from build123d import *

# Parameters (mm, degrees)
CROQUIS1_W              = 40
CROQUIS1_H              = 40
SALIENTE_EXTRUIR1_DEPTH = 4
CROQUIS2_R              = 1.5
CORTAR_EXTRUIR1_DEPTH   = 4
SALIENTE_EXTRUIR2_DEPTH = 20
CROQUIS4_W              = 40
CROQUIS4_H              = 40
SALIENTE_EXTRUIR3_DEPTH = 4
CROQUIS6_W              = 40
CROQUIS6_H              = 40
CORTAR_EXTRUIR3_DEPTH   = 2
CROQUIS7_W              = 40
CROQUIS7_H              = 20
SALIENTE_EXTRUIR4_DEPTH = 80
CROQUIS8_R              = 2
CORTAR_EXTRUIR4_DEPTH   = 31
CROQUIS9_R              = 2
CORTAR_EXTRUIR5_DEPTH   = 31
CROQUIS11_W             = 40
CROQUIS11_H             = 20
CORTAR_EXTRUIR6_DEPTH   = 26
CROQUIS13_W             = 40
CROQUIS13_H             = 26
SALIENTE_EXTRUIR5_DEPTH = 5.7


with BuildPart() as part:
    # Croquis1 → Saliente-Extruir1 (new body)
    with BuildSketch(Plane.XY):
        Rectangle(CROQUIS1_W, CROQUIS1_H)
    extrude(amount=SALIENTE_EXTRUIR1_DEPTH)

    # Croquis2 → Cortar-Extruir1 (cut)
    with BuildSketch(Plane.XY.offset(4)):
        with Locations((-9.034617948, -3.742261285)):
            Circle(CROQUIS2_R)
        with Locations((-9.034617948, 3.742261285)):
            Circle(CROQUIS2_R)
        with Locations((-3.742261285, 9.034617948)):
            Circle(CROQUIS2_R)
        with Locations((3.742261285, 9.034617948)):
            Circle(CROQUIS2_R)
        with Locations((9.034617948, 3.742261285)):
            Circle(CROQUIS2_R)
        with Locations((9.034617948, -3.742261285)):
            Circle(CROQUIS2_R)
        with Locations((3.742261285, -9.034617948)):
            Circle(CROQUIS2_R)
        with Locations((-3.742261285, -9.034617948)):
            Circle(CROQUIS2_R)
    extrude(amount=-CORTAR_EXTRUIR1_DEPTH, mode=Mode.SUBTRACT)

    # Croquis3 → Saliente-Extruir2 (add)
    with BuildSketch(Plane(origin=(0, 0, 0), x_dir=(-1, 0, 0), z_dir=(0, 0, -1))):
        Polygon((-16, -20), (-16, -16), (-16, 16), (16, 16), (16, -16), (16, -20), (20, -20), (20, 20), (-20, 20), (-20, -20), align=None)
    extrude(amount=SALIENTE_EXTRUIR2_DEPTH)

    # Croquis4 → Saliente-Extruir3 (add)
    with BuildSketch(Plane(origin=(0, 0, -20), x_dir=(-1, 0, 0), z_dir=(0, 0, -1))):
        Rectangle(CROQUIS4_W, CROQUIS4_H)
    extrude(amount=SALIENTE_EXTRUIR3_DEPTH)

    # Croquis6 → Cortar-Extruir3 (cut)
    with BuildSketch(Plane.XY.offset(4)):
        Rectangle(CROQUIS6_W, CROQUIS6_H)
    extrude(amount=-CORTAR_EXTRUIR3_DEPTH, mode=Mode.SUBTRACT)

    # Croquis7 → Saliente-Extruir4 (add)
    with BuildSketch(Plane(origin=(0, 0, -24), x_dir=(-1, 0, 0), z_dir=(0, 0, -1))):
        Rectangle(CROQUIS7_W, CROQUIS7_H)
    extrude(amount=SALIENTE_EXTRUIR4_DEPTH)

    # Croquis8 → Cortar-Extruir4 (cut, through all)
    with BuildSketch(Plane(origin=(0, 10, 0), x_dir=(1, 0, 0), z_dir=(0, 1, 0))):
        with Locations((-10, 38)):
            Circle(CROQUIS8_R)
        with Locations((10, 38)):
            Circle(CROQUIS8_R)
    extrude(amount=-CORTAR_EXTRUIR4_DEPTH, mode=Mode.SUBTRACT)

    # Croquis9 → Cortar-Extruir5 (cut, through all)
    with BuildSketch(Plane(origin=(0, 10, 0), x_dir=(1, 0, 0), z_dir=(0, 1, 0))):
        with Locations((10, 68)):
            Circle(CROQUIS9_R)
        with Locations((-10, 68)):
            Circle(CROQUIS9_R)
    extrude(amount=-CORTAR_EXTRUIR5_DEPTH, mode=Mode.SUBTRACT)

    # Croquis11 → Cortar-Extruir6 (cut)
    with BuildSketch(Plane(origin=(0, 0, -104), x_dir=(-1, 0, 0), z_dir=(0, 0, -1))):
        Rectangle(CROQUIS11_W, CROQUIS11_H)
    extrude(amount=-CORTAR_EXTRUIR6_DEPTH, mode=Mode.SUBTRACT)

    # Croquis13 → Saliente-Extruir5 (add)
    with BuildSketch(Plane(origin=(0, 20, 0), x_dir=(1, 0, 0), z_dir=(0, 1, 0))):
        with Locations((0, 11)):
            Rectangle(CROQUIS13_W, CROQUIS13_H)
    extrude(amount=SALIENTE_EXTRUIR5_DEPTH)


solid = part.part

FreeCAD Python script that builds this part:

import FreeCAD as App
import Part
import Sketcher

V = App.Vector

doc = App.newDocument("Part")
params = doc.addObject("Spreadsheet::Sheet", "Params")
for row, (alias, value) in enumerate([
    ("sketch1_width", "40 mm"),
    ("pad1_length", "4 mm"),
    ("sketch2_diameter", "3 mm"),
    ("pocket1_length", "4 mm"),
    ("sketch3_width", "32 mm"),
    ("sketch3_width2", "4 mm"),
    ("sketch3_height", "36 mm"),
    ("pad2_length", "20 mm"),
    ("sketch4_width", "40 mm"),
    ("pad3_length", "4 mm"),
    ("sketch5_width", "40 mm"),
    ("pocket2_length", "2 mm"),
    ("sketch6_width", "40 mm"),
    ("sketch6_height", "20 mm"),
    ("pad4_length", "80 mm"),
    ("sketch7_diameter", "4 mm"),
    ("sketch8_diameter", "4 mm"),
    ("sketch9_width", "40 mm"),
    ("sketch9_height", "20 mm"),
    ("pocket5_length", "26 mm"),
    ("sketch10_width", "40 mm"),
    ("sketch10_height", "26 mm"),
    ("pad5_length", "5.7 mm"),
], start=1):
    params.set(f"A{row}", alias)
    params.set(f"B{row}", "=" + value)
    params.setAlias(f"B{row}", alias)

body = doc.addObject("PartDesign::Body", "Body")

# Sketch on XY plane
sketch1 = body.newObject("Sketcher::SketchObject", "Sketch")
sketch1.AttachmentSupport = (doc.getObject("XY_Plane"), [""])
sketch1.MapMode = "FlatFace"
sketch1.addGeometry(Part.LineSegment(V(-20, 20, 0), V(-20, -20, 0)), False)
sketch1.addGeometry(Part.LineSegment(V(-20, -20, 0), V(20, -20, 0)), False)
sketch1.addGeometry(Part.LineSegment(V(20, -20, 0), V(20, 20, 0)), False)
sketch1.addGeometry(Part.LineSegment(V(20, 20, 0), V(-20, 20, 0)), False)
sketch1.addConstraint(Sketcher.Constraint("Coincident", 0, 2, 1, 1))
sketch1.addConstraint(Sketcher.Constraint("Coincident", 1, 2, 2, 1))
sketch1.addConstraint(Sketcher.Constraint("Coincident", 2, 2, 3, 1))
sketch1.addConstraint(Sketcher.Constraint("Coincident", 3, 2, 0, 1))
sketch1.addConstraint(Sketcher.Constraint("Vertical", 0))
sketch1.addConstraint(Sketcher.Constraint("Horizontal", 1))
sketch1.addConstraint(Sketcher.Constraint("Vertical", 2))
sketch1.addConstraint(Sketcher.Constraint("Horizontal", 3))
sketch1.addConstraint(Sketcher.Constraint("Symmetric", 0, 2, 2, 2, -1, 1))
sketch1.addConstraint(Sketcher.Constraint("Equal", 3, 0))
sketch1.addConstraint(Sketcher.Constraint("DistanceX", 1, 1, 1, 2, 40.0))
sketch1.setExpression("Constraints[10]", "Params.sketch1_width")
pad1 = body.newObject("PartDesign::Pad", "Pad")
pad1.Profile = sketch1
pad1.setExpression("Length", "Params.pad1_length")

# Sketch on XY plane
sketch2 = body.newObject("Sketcher::SketchObject", "Sketch001")
sketch2.AttachmentSupport = (doc.getObject("XY_Plane"), [""])
sketch2.MapMode = "FlatFace"
sketch2.AttachmentOffset = App.Placement(V(0, 0, 4), App.Rotation())
sketch2.addGeometry(Part.Circle(V(-9, -3.7, 0), V(0, 0, 1), 1.5), False)
sketch2.addGeometry(Part.Circle(V(-9, 3.7, 0), V(0, 0, 1), 1.5), False)
sketch2.addGeometry(Part.Circle(V(-3.7, 9, 0), V(0, 0, 1), 1.5), False)
sketch2.addGeometry(Part.Circle(V(3.7, 9, 0), V(0, 0, 1), 1.5), False)
sketch2.addGeometry(Part.Circle(V(9, 3.7, 0), V(0, 0, 1), 1.5), False)
sketch2.addGeometry(Part.Circle(V(9, -3.7, 0), V(0, 0, 1), 1.5), False)
sketch2.addGeometry(Part.Circle(V(3.7, -9, 0), V(0, 0, 1), 1.5), False)
sketch2.addGeometry(Part.Circle(V(-3.7, -9, 0), V(0, 0, 1), 1.5), False)
sketch2.addConstraint(Sketcher.Constraint("Equal", 0, 1))
sketch2.addConstraint(Sketcher.Constraint("Equal", 1, 2))
sketch2.addConstraint(Sketcher.Constraint("Equal", 2, 3))
sketch2.addConstraint(Sketcher.Constraint("Equal", 3, 4))
sketch2.addConstraint(Sketcher.Constraint("Equal", 4, 5))
sketch2.addConstraint(Sketcher.Constraint("Equal", 5, 6))
sketch2.addConstraint(Sketcher.Constraint("Equal", 6, 7))
sketch2.addConstraint(Sketcher.Constraint("Symmetric", 0, 3, 4, 3, -1, 1))
sketch2.addConstraint(Sketcher.Constraint("Symmetric", 1, 3, 5, 3, -1, 1))
sketch2.addConstraint(Sketcher.Constraint("Symmetric", 2, 3, 6, 3, -1, 1))
sketch2.addConstraint(Sketcher.Constraint("Symmetric", 3, 3, 7, 3, -1, 1))
sketch2.addConstraint(Sketcher.Constraint("Symmetric", 2, 3, 3, 3, -2))
sketch2.addConstraint(Sketcher.Constraint("Symmetric", 1, 3, 4, 3, -2))
sketch2.addConstraint(Sketcher.Constraint("Diameter", 0, 3.0))
sketch2.addConstraint(Sketcher.Constraint("DistanceY", 0, 3, -1, 1, 3.742261))
sketch2.addConstraint(Sketcher.Constraint("DistanceX", 2, 3, -1, 1, 3.742261))
sketch2.addConstraint(Sketcher.Constraint("DistanceY", 0, 3, 2, 3, 12.776879))
sketch2.addConstraint(Sketcher.Constraint("DistanceX", 1, 3, 3, 3, 12.776879))
sketch2.setExpression("Constraints[13]", "Params.sketch2_diameter")
pocket1 = body.newObject("PartDesign::Pocket", "Pocket")
pocket1.Profile = sketch2
pocket1.setExpression("Length", "Params.pocket1_length")

# Sketch on XY plane
sketch3 = body.newObject("Sketcher::SketchObject", "Sketch002")
sketch3.AttachmentSupport = (doc.getObject("XY_Plane"), [""])
sketch3.MapMode = "FlatFace"
sketch3.addGeometry(Part.LineSegment(V(16, -20, 0), V(16, 16, 0)), False)
sketch3.addGeometry(Part.LineSegment(V(16, 16, 0), V(-16, 16, 0)), False)
sketch3.addGeometry(Part.LineSegment(V(-16, 16, 0), V(-16, -20, 0)), False)
sketch3.addGeometry(Part.LineSegment(V(-16, -20, 0), V(-20, -20, 0)), False)
sketch3.addGeometry(Part.LineSegment(V(-20, -20, 0), V(-20, 20, 0)), False)
sketch3.addGeometry(Part.LineSegment(V(-20, 20, 0), V(20, 20, 0)), False)
sketch3.addGeometry(Part.LineSegment(V(20, 20, 0), V(20, -20, 0)), False)
sketch3.addGeometry(Part.LineSegment(V(20, -20, 0), V(16, -20, 0)), False)
sketch3.addConstraint(Sketcher.Constraint("Coincident", 0, 2, 1, 1))
sketch3.addConstraint(Sketcher.Constraint("Coincident", 1, 2, 2, 1))
sketch3.addConstraint(Sketcher.Constraint("Coincident", 2, 2, 3, 1))
sketch3.addConstraint(Sketcher.Constraint("Coincident", 3, 2, 4, 1))
sketch3.addConstraint(Sketcher.Constraint("Coincident", 4, 2, 5, 1))
sketch3.addConstraint(Sketcher.Constraint("Coincident", 5, 2, 6, 1))
sketch3.addConstraint(Sketcher.Constraint("Coincident", 6, 2, 7, 1))
sketch3.addConstraint(Sketcher.Constraint("Coincident", 7, 2, 0, 1))
sketch3.addConstraint(Sketcher.Constraint("Vertical", 0))
sketch3.addConstraint(Sketcher.Constraint("Horizontal", 1))
sketch3.addConstraint(Sketcher.Constraint("Vertical", 2))
sketch3.addConstraint(Sketcher.Constraint("Horizontal", 3))
sketch3.addConstraint(Sketcher.Constraint("Vertical", 4))
sketch3.addConstraint(Sketcher.Constraint("Horizontal", 5))
sketch3.addConstraint(Sketcher.Constraint("Vertical", 6))
sketch3.addConstraint(Sketcher.Constraint("Horizontal", 7))
sketch3.addConstraint(Sketcher.Constraint("Symmetric", 3, 2, 5, 2, -1, 1))
sketch3.addConstraint(Sketcher.Constraint("Symmetric", 2, 2, 7, 2, -2))
sketch3.addConstraint(Sketcher.Constraint("Equal", 5, 4))
sketch3.addConstraint(Sketcher.Constraint("DistanceX", 1, 2, 1, 1, 32.0))
sketch3.addConstraint(Sketcher.Constraint("DistanceX", 3, 2, 3, 1, 4.0))
sketch3.addConstraint(Sketcher.Constraint("DistanceY", 0, 1, 0, 2, 36.0))
sketch3.setExpression("Constraints[19]", "Params.sketch3_width")
sketch3.setExpression("Constraints[20]", "Params.sketch3_width2")
sketch3.setExpression("Constraints[21]", "Params.sketch3_height")
pad2 = body.newObject("PartDesign::Pad", "Pad001")
pad2.Profile = sketch3
pad2.setExpression("Length", "Params.pad2_length")
pad2.Reversed = True

# Sketch on XY plane
sketch4 = body.newObject("Sketcher::SketchObject", "Sketch003")
sketch4.AttachmentSupport = (doc.getObject("XY_Plane"), [""])
sketch4.MapMode = "FlatFace"
sketch4.AttachmentOffset = App.Placement(V(0, 0, -20), App.Rotation())
sketch4.addGeometry(Part.LineSegment(V(20, 20, 0), V(20, -20, 0)), False)
sketch4.addGeometry(Part.LineSegment(V(20, -20, 0), V(-20, -20, 0)), False)
sketch4.addGeometry(Part.LineSegment(V(-20, -20, 0), V(-20, 20, 0)), False)
sketch4.addGeometry(Part.LineSegment(V(-20, 20, 0), V(20, 20, 0)), False)
sketch4.addConstraint(Sketcher.Constraint("Coincident", 0, 2, 1, 1))
sketch4.addConstraint(Sketcher.Constraint("Coincident", 1, 2, 2, 1))
sketch4.addConstraint(Sketcher.Constraint("Coincident", 2, 2, 3, 1))
sketch4.addConstraint(Sketcher.Constraint("Coincident", 3, 2, 0, 1))
sketch4.addConstraint(Sketcher.Constraint("Vertical", 0))
sketch4.addConstraint(Sketcher.Constraint("Horizontal", 1))
sketch4.addConstraint(Sketcher.Constraint("Vertical", 2))
sketch4.addConstraint(Sketcher.Constraint("Horizontal", 3))
sketch4.addConstraint(Sketcher.Constraint("Symmetric", 0, 2, 2, 2, -1, 1))
sketch4.addConstraint(Sketcher.Constraint("Equal", 3, 0))
sketch4.addConstraint(Sketcher.Constraint("DistanceX", 1, 2, 1, 1, 40.0))
sketch4.setExpression("Constraints[10]", "Params.sketch4_width")
pad3 = body.newObject("PartDesign::Pad", "Pad002")
pad3.Profile = sketch4
pad3.setExpression("Length", "Params.pad3_length")
pad3.Reversed = True

# Sketch on XY plane
sketch5 = body.newObject("Sketcher::SketchObject", "Sketch004")
sketch5.AttachmentSupport = (doc.getObject("XY_Plane"), [""])
sketch5.MapMode = "FlatFace"
sketch5.AttachmentOffset = App.Placement(V(0, 0, 4), App.Rotation())
sketch5.addGeometry(Part.LineSegment(V(-20, 20, 0), V(-20, -20, 0)), False)
sketch5.addGeometry(Part.LineSegment(V(-20, -20, 0), V(20, -20, 0)), False)
sketch5.addGeometry(Part.LineSegment(V(20, -20, 0), V(20, 20, 0)), False)
sketch5.addGeometry(Part.LineSegment(V(20, 20, 0), V(-20, 20, 0)), False)
sketch5.addConstraint(Sketcher.Constraint("Coincident", 0, 2, 1, 1))
sketch5.addConstraint(Sketcher.Constraint("Coincident", 1, 2, 2, 1))
sketch5.addConstraint(Sketcher.Constraint("Coincident", 2, 2, 3, 1))
sketch5.addConstraint(Sketcher.Constraint("Coincident", 3, 2, 0, 1))
sketch5.addConstraint(Sketcher.Constraint("Vertical", 0))
sketch5.addConstraint(Sketcher.Constraint("Horizontal", 1))
sketch5.addConstraint(Sketcher.Constraint("Vertical", 2))
sketch5.addConstraint(Sketcher.Constraint("Horizontal", 3))
sketch5.addConstraint(Sketcher.Constraint("Symmetric", 0, 2, 2, 2, -1, 1))
sketch5.addConstraint(Sketcher.Constraint("Equal", 3, 0))
sketch5.addConstraint(Sketcher.Constraint("DistanceX", 1, 1, 1, 2, 40.0))
sketch5.setExpression("Constraints[10]", "Params.sketch5_width")
pocket2 = body.newObject("PartDesign::Pocket", "Pocket001")
pocket2.Profile = sketch5
pocket2.setExpression("Length", "Params.pocket2_length")

# Sketch on XY plane
sketch6 = body.newObject("Sketcher::SketchObject", "Sketch005")
sketch6.AttachmentSupport = (doc.getObject("XY_Plane"), [""])
sketch6.MapMode = "FlatFace"
sketch6.AttachmentOffset = App.Placement(V(0, 0, -24), App.Rotation())
sketch6.addGeometry(Part.LineSegment(V(20, 10, 0), V(20, -10, 0)), False)
sketch6.addGeometry(Part.LineSegment(V(20, -10, 0), V(-20, -10, 0)), False)
sketch6.addGeometry(Part.LineSegment(V(-20, -10, 0), V(-20, 10, 0)), False)
sketch6.addGeometry(Part.LineSegment(V(-20, 10, 0), V(20, 10, 0)), False)
sketch6.addConstraint(Sketcher.Constraint("Coincident", 0, 2, 1, 1))
sketch6.addConstraint(Sketcher.Constraint("Coincident", 1, 2, 2, 1))
sketch6.addConstraint(Sketcher.Constraint("Coincident", 2, 2, 3, 1))
sketch6.addConstraint(Sketcher.Constraint("Coincident", 3, 2, 0, 1))
sketch6.addConstraint(Sketcher.Constraint("Vertical", 0))
sketch6.addConstraint(Sketcher.Constraint("Horizontal", 1))
sketch6.addConstraint(Sketcher.Constraint("Vertical", 2))
sketch6.addConstraint(Sketcher.Constraint("Horizontal", 3))
sketch6.addConstraint(Sketcher.Constraint("Symmetric", 0, 2, 2, 2, -1, 1))
sketch6.addConstraint(Sketcher.Constraint("DistanceX", 1, 2, 1, 1, 40.0))
sketch6.addConstraint(Sketcher.Constraint("DistanceY", 0, 2, 0, 1, 20.0))
sketch6.setExpression("Constraints[9]", "Params.sketch6_width")
sketch6.setExpression("Constraints[10]", "Params.sketch6_height")
pad4 = body.newObject("PartDesign::Pad", "Pad003")
pad4.Profile = sketch6
pad4.setExpression("Length", "Params.pad4_length")
pad4.Reversed = True

# Sketch on XZ plane
sketch7 = body.newObject("Sketcher::SketchObject", "Sketch006")
sketch7.AttachmentSupport = (doc.getObject("XZ_Plane"), [""])
sketch7.MapMode = "FlatFace"
sketch7.AttachmentOffset = App.Placement(V(0, 0, -10), App.Rotation())
sketch7.addGeometry(Part.Circle(V(-10, -38, 0), V(0, 0, 1), 2), False)
sketch7.addGeometry(Part.Circle(V(10, -38, 0), V(0, 0, 1), 2), False)
sketch7.addConstraint(Sketcher.Constraint("Equal", 0, 1))
sketch7.addConstraint(Sketcher.Constraint("Symmetric", 0, 3, 1, 3, -2))
sketch7.addConstraint(Sketcher.Constraint("Diameter", 0, 4.0))
sketch7.addConstraint(Sketcher.Constraint("DistanceX", 0, 3, -1, 1, 10.0))
sketch7.addConstraint(Sketcher.Constraint("DistanceY", 0, 3, -1, 1, 38.0))
sketch7.setExpression("Constraints[2]", "Params.sketch7_diameter")
pocket3 = body.newObject("PartDesign::Pocket", "Pocket002")
pocket3.Profile = sketch7
pocket3.Type = "ThroughAll"
pocket3.Reversed = True

# Sketch on XZ plane
sketch8 = body.newObject("Sketcher::SketchObject", "Sketch007")
sketch8.AttachmentSupport = (doc.getObject("XZ_Plane"), [""])
sketch8.MapMode = "FlatFace"
sketch8.AttachmentOffset = App.Placement(V(0, 0, -10), App.Rotation())
sketch8.addGeometry(Part.Circle(V(10, -68, 0), V(0, 0, 1), 2), False)
sketch8.addGeometry(Part.Circle(V(-10, -68, 0), V(0, 0, 1), 2), False)
sketch8.addConstraint(Sketcher.Constraint("Equal", 0, 1))
sketch8.addConstraint(Sketcher.Constraint("Symmetric", 0, 3, 1, 3, -2))
sketch8.addConstraint(Sketcher.Constraint("Diameter", 0, 4.0))
sketch8.addConstraint(Sketcher.Constraint("DistanceX", -1, 1, 0, 3, 10.0))
sketch8.addConstraint(Sketcher.Constraint("DistanceY", 0, 3, -1, 1, 68.0))
sketch8.setExpression("Constraints[2]", "Params.sketch8_diameter")
pocket4 = body.newObject("PartDesign::Pocket", "Pocket003")
pocket4.Profile = sketch8
pocket4.Type = "ThroughAll"
pocket4.Reversed = True

# Sketch on XY plane
sketch9 = body.newObject("Sketcher::SketchObject", "Sketch008")
sketch9.AttachmentSupport = (doc.getObject("XY_Plane"), [""])
sketch9.MapMode = "FlatFace"
sketch9.AttachmentOffset = App.Placement(V(0, 0, -104), App.Rotation())
sketch9.addGeometry(Part.LineSegment(V(20, 10, 0), V(20, -10, 0)), False)
sketch9.addGeometry(Part.LineSegment(V(20, -10, 0), V(-20, -10, 0)), False)
sketch9.addGeometry(Part.LineSegment(V(-20, -10, 0), V(-20, 10, 0)), False)
sketch9.addGeometry(Part.LineSegment(V(-20, 10, 0), V(20, 10, 0)), False)
sketch9.addConstraint(Sketcher.Constraint("Coincident", 0, 2, 1, 1))
sketch9.addConstraint(Sketcher.Constraint("Coincident", 1, 2, 2, 1))
sketch9.addConstraint(Sketcher.Constraint("Coincident", 2, 2, 3, 1))
sketch9.addConstraint(Sketcher.Constraint("Coincident", 3, 2, 0, 1))
sketch9.addConstraint(Sketcher.Constraint("Vertical", 0))
sketch9.addConstraint(Sketcher.Constraint("Horizontal", 1))
sketch9.addConstraint(Sketcher.Constraint("Vertical", 2))
sketch9.addConstraint(Sketcher.Constraint("Horizontal", 3))
sketch9.addConstraint(Sketcher.Constraint("Symmetric", 0, 2, 2, 2, -1, 1))
sketch9.addConstraint(Sketcher.Constraint("DistanceX", 1, 2, 1, 1, 40.0))
sketch9.addConstraint(Sketcher.Constraint("DistanceY", 0, 2, 0, 1, 20.0))
sketch9.setExpression("Constraints[9]", "Params.sketch9_width")
sketch9.setExpression("Constraints[10]", "Params.sketch9_height")
pocket5 = body.newObject("PartDesign::Pocket", "Pocket004")
pocket5.Profile = sketch9
pocket5.setExpression("Length", "Params.pocket5_length")
pocket5.Reversed = True

# Sketch on XZ plane
sketch10 = body.newObject("Sketcher::SketchObject", "Sketch009")
sketch10.AttachmentSupport = (doc.getObject("XZ_Plane"), [""])
sketch10.MapMode = "FlatFace"
sketch10.AttachmentOffset = App.Placement(V(0, 0, -20), App.Rotation())
sketch10.addGeometry(Part.LineSegment(V(-20, -24, 0), V(-20, 2, 0)), False)
sketch10.addGeometry(Part.LineSegment(V(-20, 2, 0), V(20, 2, 0)), False)
sketch10.addGeometry(Part.LineSegment(V(20, 2, 0), V(20, -24, 0)), False)
sketch10.addGeometry(Part.LineSegment(V(20, -24, 0), V(-20, -24, 0)), False)
sketch10.addConstraint(Sketcher.Constraint("Coincident", 0, 2, 1, 1))
sketch10.addConstraint(Sketcher.Constraint("Coincident", 1, 2, 2, 1))
sketch10.addConstraint(Sketcher.Constraint("Coincident", 2, 2, 3, 1))
sketch10.addConstraint(Sketcher.Constraint("Coincident", 3, 2, 0, 1))
sketch10.addConstraint(Sketcher.Constraint("Vertical", 0))
sketch10.addConstraint(Sketcher.Constraint("Horizontal", 1))
sketch10.addConstraint(Sketcher.Constraint("Vertical", 2))
sketch10.addConstraint(Sketcher.Constraint("Horizontal", 3))
sketch10.addConstraint(Sketcher.Constraint("DistanceX", 1, 1, 1, 2, 40.0))
sketch10.addConstraint(Sketcher.Constraint("DistanceY", 0, 1, 0, 2, 26.0))
sketch10.addConstraint(Sketcher.Constraint("DistanceX", 0, 2, -1, 1, 20.0))
sketch10.addConstraint(Sketcher.Constraint("DistanceY", -1, 1, 0, 2, 2.0))
sketch10.setExpression("Constraints[8]", "Params.sketch10_width")
sketch10.setExpression("Constraints[9]", "Params.sketch10_height")
pad5 = body.newObject("PartDesign::Pad", "Pad004")
pad5.Profile = sketch10
pad5.setExpression("Length", "Params.pad5_length")
pad5.Reversed = True

doc.recompute()
